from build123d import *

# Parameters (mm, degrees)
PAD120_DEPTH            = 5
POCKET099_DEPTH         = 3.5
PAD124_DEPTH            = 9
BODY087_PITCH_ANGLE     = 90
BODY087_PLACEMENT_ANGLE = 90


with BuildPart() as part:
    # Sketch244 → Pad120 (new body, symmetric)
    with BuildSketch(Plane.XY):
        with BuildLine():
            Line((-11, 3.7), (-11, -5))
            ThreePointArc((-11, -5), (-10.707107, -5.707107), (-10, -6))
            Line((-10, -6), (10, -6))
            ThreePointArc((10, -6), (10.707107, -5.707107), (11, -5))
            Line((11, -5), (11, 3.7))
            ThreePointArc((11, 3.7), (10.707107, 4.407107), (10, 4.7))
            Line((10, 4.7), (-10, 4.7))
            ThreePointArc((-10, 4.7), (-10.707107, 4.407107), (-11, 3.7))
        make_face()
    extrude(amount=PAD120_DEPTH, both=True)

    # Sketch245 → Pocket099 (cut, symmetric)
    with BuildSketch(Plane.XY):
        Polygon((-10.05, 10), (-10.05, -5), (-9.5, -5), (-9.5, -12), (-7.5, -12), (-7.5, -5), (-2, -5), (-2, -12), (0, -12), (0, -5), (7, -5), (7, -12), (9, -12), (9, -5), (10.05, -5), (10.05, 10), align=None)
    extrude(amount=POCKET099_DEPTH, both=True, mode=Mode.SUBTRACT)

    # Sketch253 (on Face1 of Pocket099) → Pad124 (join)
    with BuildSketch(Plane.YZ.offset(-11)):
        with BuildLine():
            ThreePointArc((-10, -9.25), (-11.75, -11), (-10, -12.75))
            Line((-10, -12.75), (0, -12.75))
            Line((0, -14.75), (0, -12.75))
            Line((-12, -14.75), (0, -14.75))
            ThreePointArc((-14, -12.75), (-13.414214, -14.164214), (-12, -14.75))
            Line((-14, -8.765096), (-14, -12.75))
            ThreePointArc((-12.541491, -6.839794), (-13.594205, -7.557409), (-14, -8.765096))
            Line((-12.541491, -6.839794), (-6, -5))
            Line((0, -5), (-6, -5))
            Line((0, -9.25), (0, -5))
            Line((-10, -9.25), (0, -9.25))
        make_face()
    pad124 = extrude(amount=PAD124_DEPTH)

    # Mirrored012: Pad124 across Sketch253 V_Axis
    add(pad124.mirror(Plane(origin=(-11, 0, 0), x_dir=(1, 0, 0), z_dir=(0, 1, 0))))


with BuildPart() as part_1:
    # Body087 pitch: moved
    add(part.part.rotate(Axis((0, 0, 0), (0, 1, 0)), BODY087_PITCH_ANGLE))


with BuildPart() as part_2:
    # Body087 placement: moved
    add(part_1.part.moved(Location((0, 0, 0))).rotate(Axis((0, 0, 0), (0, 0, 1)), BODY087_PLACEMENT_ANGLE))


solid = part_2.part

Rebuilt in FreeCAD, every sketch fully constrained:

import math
import FreeCAD as App
import Part
import Sketcher

V = App.Vector


def add_polygon(sketch, points):
    """Adds a closed chain of lines whose ends are joined by coincident constraints."""
    first, n = sketch.GeometryCount, len(points)
    for a, b in zip(points, points[1:] + points[:1]):
        sketch.addGeometry(Part.LineSegment(App.Vector(*a, 0), App.Vector(*b, 0)), False)
    for i in range(n):
        sketch.addConstraint(Sketcher.Constraint("Coincident", first + i, 2, first + (i + 1) % n, 1))

doc = App.newDocument("Part")
body = doc.addObject("PartDesign::Body", "Body")

# Sketch on XY plane
sketch1 = body.newObject("Sketcher::SketchObject", "Sketch")
sketch1.AttachmentSupport = (doc.getObject("XY_Plane"), [""])
sketch1.MapMode = "FlatFace"
sketch1.addGeometry(Part.LineSegment(V(-11, 3.7, 0), V(-11, -5, 0)), False)
sketch1.addGeometry(Part.ArcOfCircle(Part.Circle(V(-10, -5, 0), V(0, 0, 1), 1), math.radians(180), math.radians(270)), False)
sketch1.addGeometry(Part.LineSegment(V(-10, -6, 0), V(10, -6, 0)), False)
sketch1.addGeometry(Part.ArcOfCircle(Part.Circle(V(10, -5, 0), V(0, 0, 1), 1), math.radians(-90), math.radians(0)), False)
sketch1.addGeometry(Part.LineSegment(V(11, -5, 0), V(11, 3.7, 0)), False)
sketch1.addGeometry(Part.ArcOfCircle(Part.Circle(V(10, 3.7, 0), V(0, 0, 1), 1), math.radians(0), math.radians(90)), False)
sketch1.addGeometry(Part.LineSegment(V(10, 4.7, 0), V(-10, 4.7, 0)), False)
sketch1.addGeometry(Part.ArcOfCircle(Part.Circle(V(-10, 3.7, 0), V(0, 0, 1), 1), math.radians(90), math.radians(180)), False)
sketch1.addConstraint(Sketcher.Constraint("Tangent", 0, 2, 1, 1))
sketch1.addConstraint(Sketcher.Constraint("Tangent", 1, 2, 2, 1))
sketch1.addConstraint(Sketcher.Constraint("Tangent", 2, 2, 3, 1))
sketch1.addConstraint(Sketcher.Constraint("Tangent", 3, 2, 4, 1))
sketch1.addConstraint(Sketcher.Constraint("Tangent", 4, 2, 5, 1))
sketch1.addConstraint(Sketcher.Constraint("Tangent", 5, 2, 6, 1))
sketch1.addConstraint(Sketcher.Constraint("Tangent", 6, 2, 7, 1))
sketch1.addConstraint(Sketcher.Constraint("Tangent", 7, 2, 0, 1))
sketch1.addConstraint(Sketcher.Constraint("Vertical", 0))
sketch1.addConstraint(Sketcher.Constraint("Horizontal", 2))
sketch1.addConstraint(Sketcher.Constraint("Vertical", 4))
sketch1.addConstraint(Sketcher.Constraint("Horizontal", 6))
sketch1.addConstraint(Sketcher.Constraint("Equal", 1, 3))
sketch1.addConstraint(Sketcher.Constraint("Equal", 3, 5))
sketch1.addConstraint(Sketcher.Constraint("Equal", 5, 7))
sketch1.addConstraint(Sketcher.Constraint("Radius", 1, 0.999999))
sketch1.addConstraint(Sketcher.Constraint("DistanceX", 2, 1, 2, 2, 20.0))
sketch1.addConstraint(Sketcher.Constraint("DistanceY", 0, 2, 0, 1, 8.7))
sketch1.addConstraint(Sketcher.Constraint("DistanceX", 1, 3, -1, 1, 10.000001))
sketch1.addConstraint(Sketcher.Constraint("DistanceY", 1, 3, -1, 1, 5.000001))
pad1 = body.newObject("PartDesign::Pad", "Pad")
pad1.Profile = sketch1
pad1.Length = 10
pad1.Midplane = True

# Sketch on XY plane
sketch2 = body.newObject("Sketcher::SketchObject", "Sketch001")
sketch2.AttachmentSupport = (doc.getObject("XY_Plane"), [""])
sketch2.MapMode = "FlatFace"
add_polygon(sketch2, [(-10.1, 10), (-10.1, -5), (-9.5, -5), (-9.5, -12), (-7.5, -12), (-7.5, -5), (-2, -5), (-2, -12), (0, -12), (0, -5), (7, -5), (7, -12), (9, -12), (9, -5), (10.1, -5), (10.1, 10)])  # lines 0-15
sketch2.addConstraint(Sketcher.Constraint("Vertical", 0))
sketch2.addConstraint(Sketcher.Constraint("Horizontal", 1))
sketch2.addConstraint(Sketcher.Constraint("Vertical", 2))
sketch2.addConstraint(Sketcher.Constraint("Horizontal", 3))
sketch2.addConstraint(Sketcher.Constraint("Vertical", 4))
sketch2.addConstraint(Sketcher.Constraint("Horizontal", 5))
sketch2.addConstraint(Sketcher.Constraint("Vertical", 6))
sketch2.addConstraint(Sketcher.Constraint("Horizontal", 7))
sketch2.addConstraint(Sketcher.Constraint("Vertical", 8))
sketch2.addConstraint(Sketcher.Constraint("Horizontal", 9))
sketch2.addConstraint(Sketcher.Constraint("Vertical", 10))
sketch2.addConstraint(Sketcher.Constraint("Horizontal", 11))
sketch2.addConstraint(Sketcher.Constraint("Vertical", 12))
sketch2.addConstraint(Sketcher.Constraint("Horizontal", 13))
sketch2.addConstraint(Sketcher.Constraint("Vertical", 14))
sketch2.addConstraint(Sketcher.Constraint("Horizontal", 15))
sketch2.addConstraint(Sketcher.Constraint("Symmetric", 0, 2, 13, 2, -2))
sketch2.addConstraint(Sketcher.Constraint("PointOnObject", 7, 2, -2))
sketch2.addConstraint(Sketcher.Constraint("Horizontal", 1, 2, 4, 2))
sketch2.addConstraint(Sketcher.Constraint("Horizontal", 3, 2, 6, 2))
sketch2.addConstraint(Sketcher.Constraint("Horizontal", 5, 2, 8, 2))
sketch2.addConstraint(Sketcher.Constraint("Horizontal", 7, 2, 10, 2))
sketch2.addConstraint(Sketcher.Constraint("Equal", 3, 7))
sketch2.addConstraint(Sketcher.Constraint("Equal", 7, 11))
sketch2.addConstraint(Sketcher.Constraint("Equal", 9, 2))
sketch2.addConstraint(Sketcher.Constraint("DistanceX", 3, 1, 3, 2, 2.0))
sketch2.addConstraint(Sketcher.Constraint("DistanceX", 9, 1, 9, 2, 7.0))
sketch2.addConstraint(Sketcher.Constraint("DistanceY", 0, 2, 0, 1, 15.0))
sketch2.addConstraint(Sketcher.Constraint("DistanceX", 5, 1, 5, 2, 5.5))
sketch2.addConstraint(Sketcher.Constraint("DistanceX", 15, 2, 15, 1, 20.1))
sketch2.addConstraint(Sketcher.Constraint("DistanceY", 0, 2, -1, 1, 5.0))
pocket1 = body.newObject("PartDesign::Pocket", "Pocket")
pocket1.Profile = sketch2
pocket1.Length = 7
pocket1.Midplane = True

# Sketch on YZ plane
sketch3 = body.newObject("Sketcher::SketchObject", "Sketch002")
sketch3.AttachmentSupport = (doc.getObject("YZ_Plane"), [""])
sketch3.MapMode = "FlatFace"
sketch3.AttachmentOffset = App.Placement(V(0, 0, -11), App.Rotation())
sketch3.addGeometry(Part.ArcOfCircle(Part.Circle(V(-10, -11, 0), V(0, 0, 1), 1.75), math.radians(90), math.radians(270)), False)
sketch3.addGeometry(Part.LineSegment(V(-10, -9.25, 0), V(0, -9.25, 0)), False)
sketch3.addGeometry(Part.LineSegment(V(0, -9.25, 0), V(0, -5, 0)), False)
sketch3.addGeometry(Part.LineSegment(V(0, -5, 0), V(-6, -5, 0)), False)
sketch3.addGeometry(Part.LineSegment(V(-6, -5, 0), V(-12.541491, -6.839794, 0)), False)
sketch3.addGeometry(Part.ArcOfCircle(Part.Circle(V(-11.999997, -8.765098, 0), V(0, 0, 1), 2.000003), math.radians(105.708691), math.radians(179.999944)), False)
sketch3.addGeometry(Part.LineSegment(V(-14, -8.765096, 0), V(-14, -12.75, 0)), False)
sketch3.addGeometry(Part.ArcOfCircle(Part.Circle(V(-12.000001, -12.750001, 0), V(0, 0, 1), 1.999999), math.radians(179.999957), math.radians(270.000043)), False)
sketch3.addGeometry(Part.LineSegment(V(-12, -14.75, 0), V(0, -14.75, 0)), False)
sketch3.addGeometry(Part.LineSegment(V(0, -14.75, 0), V(0, -12.75, 0)), False)
sketch3.addGeometry(Part.LineSegment(V(0, -12.75, 0), V(-10, -12.75, 0)), False)
sketch3.addConstraint(Sketcher.Constraint("Coincident", 0, 1, 1, 1))
sketch3.addConstraint(Sketcher.Constraint("Coincident", 1, 2, 2, 1))
sketch3.addConstraint(Sketcher.Constraint("Coincident", 2, 2, 3, 1))
sketch3.addConstraint(Sketcher.Constraint("Coincident", 3, 2, 4, 1))
sketch3.addConstraint(Sketcher.Constraint("Coincident", 4, 2, 5, 1))
sketch3.addConstraint(Sketcher.Constraint("Coincident", 5, 2, 6, 1))
sketch3.addConstraint(Sketcher.Constraint("Coincident", 6, 2, 7, 1))
sketch3.addConstraint(Sketcher.Constraint("Coincident", 7, 2, 8, 1))
sketch3.addConstraint(Sketcher.Constraint("Coincident", 8, 2, 9, 1))
sketch3.addConstraint(Sketcher.Constraint("Coincident", 9, 2, 10, 1))
sketch3.addConstraint(Sketcher.Constraint("Coincident", 10, 2, 0, 2))
sketch3.addConstraint(Sketcher.Constraint("Horizontal", 1))
sketch3.addConstraint(Sketcher.Constraint("Vertical", 2))
sketch3.addConstraint(Sketcher.Constraint("Horizontal", 3))
sketch3.addConstraint(Sketcher.Constraint("Vertical", 6))
sketch3.addConstraint(Sketcher.Constraint("Horizontal", 8))
sketch3.addConstraint(Sketcher.Constraint("Vertical", 9))
sketch3.addConstraint(Sketcher.Constraint("Horizontal", 10))
sketch3.addConstraint(Sketcher.Constraint("PointOnObject", 1, 2, -2))
sketch3.addConstraint(Sketcher.Constraint("PointOnObject", 8, 2, -2))
sketch3.addConstraint(Sketcher.Constraint("Radius", 7, 1.999999))
sketch3.addConstraint(Sketcher.Constraint("DistanceX", 1, 1, 1, 2, 10.0))
sketch3.addConstraint(Sketcher.Constraint("DistanceX", 3, 2, 3, 1, 6.0))
sketch3.addConstraint(Sketcher.Constraint("DistanceX", 8, 1, 8, 2, 12.0))
sketch3.addConstraint(Sketcher.Constraint("DistanceX", 10, 2, 10, 1, 10.0))
sketch3.addConstraint(Sketcher.Constraint("DistanceY", 9, 1, 9, 2, 2.0))
sketch3.addConstraint(Sketcher.Constraint("Radius", 0, 1.75))
sketch3.addConstraint(Sketcher.Constraint("DistanceX", 0, 3, -1, 1, 10.0))
sketch3.addConstraint(Sketcher.Constraint("DistanceY", 0, 3, -1, 1, 11.0))
sketch3.addConstraint(Sketcher.Constraint("DistanceX", 7, 3, -1, 1, 12.000001))
sketch3.addConstraint(Sketcher.Constraint("DistanceY", 2, 2, -1, 1, 5.0))
sketch3.addConstraint(Sketcher.Constraint("DistanceY", 7, 2, 6, 2, 2.0))
sketch3.addConstraint(Sketcher.Constraint("Radius", 5, 2.000003))
sketch3.addConstraint(Sketcher.Constraint("DistanceY", 5, 2, 4, 2, 1.925302))
sketch3.addConstraint(Sketcher.Constraint("Distance", 4, 6.795289))
sketch3.addConstraint(Sketcher.Constraint("DistanceY", 6, 2, 6, 1, 3.984904))
pad2 = body.newObject("PartDesign::Pad", "Pad001")
pad2.Profile = sketch3
pad2.Length = 9
doc.recompute()

mirrored = body.newObject("PartDesign::Mirrored", "Mirrored")
mirrored.Originals = [pad2]
mirrored.MirrorPlane = (doc.getObject("XZ_Plane"), [""])
body.Tip = mirrored
body2 = doc.addObject("PartDesign::Body", "Body001")
doc.recompute()

body.Placement = App.Placement(V(0, 0, 0), App.Rotation(V(0, 1, 0), 90))
boolean = body2.newObject("PartDesign::Boolean", "Boolean")
boolean.Type = "Fuse"
boolean.addObjects([body])
body3 = doc.addObject("PartDesign::Body", "Body002")
doc.recompute()

body2.Placement = App.Placement(V(0, 0, 0), App.Rotation(V(0, 0, 1), 90))
boolean2 = body3.newObject("PartDesign::Boolean", "Boolean001")
boolean2.Type = "Fuse"
boolean2.addObjects([body2])

doc.recompute()
